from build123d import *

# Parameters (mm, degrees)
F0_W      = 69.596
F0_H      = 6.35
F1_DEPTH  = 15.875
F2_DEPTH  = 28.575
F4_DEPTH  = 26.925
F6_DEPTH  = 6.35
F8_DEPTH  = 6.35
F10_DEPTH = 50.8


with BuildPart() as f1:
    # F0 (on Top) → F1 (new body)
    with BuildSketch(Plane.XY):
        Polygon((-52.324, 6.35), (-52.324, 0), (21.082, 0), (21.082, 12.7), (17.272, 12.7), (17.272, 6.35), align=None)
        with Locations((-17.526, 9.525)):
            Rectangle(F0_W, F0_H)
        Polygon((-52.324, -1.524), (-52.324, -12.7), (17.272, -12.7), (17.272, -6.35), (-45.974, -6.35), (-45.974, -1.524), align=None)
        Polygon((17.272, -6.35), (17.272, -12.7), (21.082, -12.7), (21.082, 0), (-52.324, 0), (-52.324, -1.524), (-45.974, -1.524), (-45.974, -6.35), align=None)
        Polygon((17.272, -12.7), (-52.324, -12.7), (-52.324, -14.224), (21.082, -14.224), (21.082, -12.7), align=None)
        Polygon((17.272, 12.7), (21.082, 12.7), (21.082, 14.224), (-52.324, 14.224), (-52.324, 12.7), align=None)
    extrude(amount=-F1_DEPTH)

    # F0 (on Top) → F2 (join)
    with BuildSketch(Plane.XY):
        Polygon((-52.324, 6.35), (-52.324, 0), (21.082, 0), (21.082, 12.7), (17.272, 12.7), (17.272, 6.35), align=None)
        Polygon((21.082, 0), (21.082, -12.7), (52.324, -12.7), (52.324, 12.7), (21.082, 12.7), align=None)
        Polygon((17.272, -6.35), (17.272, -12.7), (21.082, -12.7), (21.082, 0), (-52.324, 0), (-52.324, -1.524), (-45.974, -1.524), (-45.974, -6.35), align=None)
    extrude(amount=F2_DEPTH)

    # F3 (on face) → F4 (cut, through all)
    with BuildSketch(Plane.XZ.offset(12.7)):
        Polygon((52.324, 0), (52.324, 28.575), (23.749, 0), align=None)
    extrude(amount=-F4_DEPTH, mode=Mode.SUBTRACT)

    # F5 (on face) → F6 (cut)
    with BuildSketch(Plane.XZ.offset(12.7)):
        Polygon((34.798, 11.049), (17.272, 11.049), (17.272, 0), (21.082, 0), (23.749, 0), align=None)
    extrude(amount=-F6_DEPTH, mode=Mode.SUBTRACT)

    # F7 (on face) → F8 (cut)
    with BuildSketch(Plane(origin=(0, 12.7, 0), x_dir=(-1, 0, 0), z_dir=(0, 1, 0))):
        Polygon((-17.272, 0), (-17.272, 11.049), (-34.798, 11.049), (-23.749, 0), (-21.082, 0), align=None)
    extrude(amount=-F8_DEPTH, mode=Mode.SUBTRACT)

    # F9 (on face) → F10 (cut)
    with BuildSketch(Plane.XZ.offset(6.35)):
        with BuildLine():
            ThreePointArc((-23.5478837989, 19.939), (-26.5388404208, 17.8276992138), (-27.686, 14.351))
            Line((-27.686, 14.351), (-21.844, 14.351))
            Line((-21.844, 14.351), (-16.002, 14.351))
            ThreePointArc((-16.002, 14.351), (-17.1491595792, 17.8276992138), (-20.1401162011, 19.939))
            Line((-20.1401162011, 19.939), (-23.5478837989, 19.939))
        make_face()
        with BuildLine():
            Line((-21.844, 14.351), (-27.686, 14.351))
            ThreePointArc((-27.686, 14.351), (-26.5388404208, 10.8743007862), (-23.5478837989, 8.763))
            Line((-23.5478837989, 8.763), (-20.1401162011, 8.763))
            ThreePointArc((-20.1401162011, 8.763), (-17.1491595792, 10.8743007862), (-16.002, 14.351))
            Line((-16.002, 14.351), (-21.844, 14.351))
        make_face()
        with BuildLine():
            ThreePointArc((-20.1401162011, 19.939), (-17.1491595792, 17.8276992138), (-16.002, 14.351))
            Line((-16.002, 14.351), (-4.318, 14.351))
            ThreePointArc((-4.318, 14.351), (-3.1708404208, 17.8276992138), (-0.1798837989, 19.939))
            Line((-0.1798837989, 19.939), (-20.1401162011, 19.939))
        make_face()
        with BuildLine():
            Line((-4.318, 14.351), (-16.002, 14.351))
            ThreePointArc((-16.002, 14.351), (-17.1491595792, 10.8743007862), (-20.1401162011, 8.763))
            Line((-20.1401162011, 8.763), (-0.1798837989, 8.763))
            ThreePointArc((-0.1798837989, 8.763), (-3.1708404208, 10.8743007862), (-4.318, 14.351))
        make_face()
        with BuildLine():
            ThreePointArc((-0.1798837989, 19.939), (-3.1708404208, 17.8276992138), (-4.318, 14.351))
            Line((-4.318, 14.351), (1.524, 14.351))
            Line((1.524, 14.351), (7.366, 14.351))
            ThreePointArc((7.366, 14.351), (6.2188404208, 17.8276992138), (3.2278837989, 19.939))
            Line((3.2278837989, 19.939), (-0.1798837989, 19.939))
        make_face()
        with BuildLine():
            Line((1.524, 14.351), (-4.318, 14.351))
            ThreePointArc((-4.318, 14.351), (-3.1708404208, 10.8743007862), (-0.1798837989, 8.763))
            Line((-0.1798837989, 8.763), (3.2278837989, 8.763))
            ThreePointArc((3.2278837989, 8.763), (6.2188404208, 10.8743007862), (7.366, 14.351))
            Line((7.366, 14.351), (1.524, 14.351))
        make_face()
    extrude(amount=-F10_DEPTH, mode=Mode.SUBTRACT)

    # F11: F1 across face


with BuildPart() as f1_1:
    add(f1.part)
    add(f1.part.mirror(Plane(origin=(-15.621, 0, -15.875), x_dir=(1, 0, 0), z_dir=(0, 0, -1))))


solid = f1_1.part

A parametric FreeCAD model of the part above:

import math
import FreeCAD as App
import Part
import Sketcher

V = App.Vector
Q = App.Units.Quantity

doc = App.newDocument("Part")
params = doc.addObject("Spreadsheet::Sheet", "Params")
for row, (alias, value) in enumerate([
    ("sketch1_width", "2.89 in"),
    ("sketch1_height", "1.12 in"),
    ("pad1_length", "0.625 in"),
    ("sketch2_height", "1 in"),
    ("sketch2_width", "0.25 in"),
    ("sketch2_width2", "2.49 in"),
    ("sketch2_width3", "1.38 in"),
    ("sketch2_height2", "0.31 in"),
    ("pad2_length", "1.125 in"),
    ("sketch3_width", "1.125 in"),
    ("sketch4_width", "0.69 in"),
    ("sketch4_width2", "0.255 in"),
    ("pocket2_length", "0.25 in"),
    ("sketch5_width", "0.69 in"),
    ("sketch5_width2", "0.255 in"),
    ("pocket3_length", "0.25 in"),
    ("sketch6_radius", "0.23 in"),
    ("pocket4_length", "2 in"),
], start=1):
    params.set(f"A{row}", alias)
    params.set(f"B{row}", "=" + value)
    params.setAlias(f"B{row}", alias)

body = doc.addObject("PartDesign::Body", "Body")

sketch1 = body.newObject("Sketcher::SketchObject", "Sketch")
sketch1.AttachmentSupport = (doc.getObject("XY_Plane"), [""])
sketch1.MapMode = "FlatFace"
sketch1.addGeometry(Part.LineSegment(V(-52, -14, 0), V(21, -14, 0)), False)
sketch1.addGeometry(Part.LineSegment(V(21, -14, 0), V(21, 14, 0)), False)
sketch1.addGeometry(Part.LineSegment(V(21, 14, 0), V(-52, 14, 0)), False)
sketch1.addGeometry(Part.LineSegment(V(-52, 14, 0), V(-52, -14, 0)), False)
sketch1.addConstraint(Sketcher.Constraint("Coincident", 0, 2, 1, 1))
sketch1.addConstraint(Sketcher.Constraint("Coincident", 1, 2, 2, 1))
sketch1.addConstraint(Sketcher.Constraint("Coincident", 2, 2, 3, 1))
sketch1.addConstraint(Sketcher.Constraint("Coincident", 3, 2, 0, 1))
sketch1.addConstraint(Sketcher.Constraint("Horizontal", 0))
sketch1.addConstraint(Sketcher.Constraint("Vertical", 1))
sketch1.addConstraint(Sketcher.Constraint("Horizontal", 2))
sketch1.addConstraint(Sketcher.Constraint("Vertical", 3))
sketch1.addConstraint(Sketcher.Constraint("DistanceX", 0, 1, 0, 2, Q("2.89 in")))
sketch1.addConstraint(Sketcher.Constraint("DistanceY", 1, 1, 1, 2, Q("1.12 in")))
sketch1.addConstraint(Sketcher.Constraint("DistanceX", -1, 1, 0, 2, Q("0.83 in")))
sketch1.addConstraint(Sketcher.Constraint("DistanceY", 0, 2, -1, 1, Q("0.56 in")))
sketch1.setExpression("Constraints[8]", "Params.sketch1_width")
sketch1.setExpression("Constraints[9]", "Params.sketch1_height")
pad1 = body.newObject("PartDesign::Pad", "Pad")
pad1.Profile = sketch1
pad1.setExpression("Length", "Params.pad1_length")
pad1.Reversed = True

sketch2 = body.newObject("Sketcher::SketchObject", "Sketch001")
sketch2.AttachmentSupport = (doc.getObject("XY_Plane"), [""])
sketch2.MapMode = "FlatFace"
sketch2.addGeometry(Part.LineSegment(V(-52.3, 6.3, 0), V(-52.3, -1.5, 0)), False)
sketch2.addGeometry(Part.LineSegment(V(-52.3, -1.5, 0), V(-46, -1.5, 0)), False)
sketch2.addGeometry(Part.LineSegment(V(-46, -1.5, 0), V(-46, -6.3, 0)), False)
sketch2.addGeometry(Part.LineSegment(V(-46, -6.3, 0), V(17.3, -6.3, 0)), False)
sketch2.addGeometry(Part.LineSegment(V(17.3, -6.3, 0), V(17.3, -12.7, 0)), False)
sketch2.addGeometry(Part.LineSegment(V(17.3, -12.7, 0), V(52.3, -12.7, 0)), False)
sketch2.addGeometry(Part.LineSegment(V(52.3, -12.7, 0), V(52.3, 12.7, 0)), False)
sketch2.addGeometry(Part.LineSegment(V(52.3, 12.7, 0), V(17.3, 12.7, 0)), False)
sketch2.addGeometry(Part.LineSegment(V(17.3, 12.7, 0), V(17.3, 6.3, 0)), False)
sketch2.addGeometry(Part.LineSegment(V(17.3, 6.3, 0), V(-52.3, 6.3, 0)), False)
sketch2.addConstraint(Sketcher.Constraint("Coincident", 0, 2, 1, 1))
sketch2.addConstraint(Sketcher.Constraint("Coincident", 1, 2, 2, 1))
sketch2.addConstraint(Sketcher.Constraint("Coincident", 2, 2, 3, 1))
sketch2.addConstraint(Sketcher.Constraint("Coincident", 3, 2, 4, 1))
sketch2.addConstraint(Sketcher.Constraint("Coincident", 4, 2, 5, 1))
sketch2.addConstraint(Sketcher.Constraint("Coincident", 5, 2, 6, 1))
sketch2.addConstraint(Sketcher.Constraint("Coincident", 6, 2, 7, 1))
sketch2.addConstraint(Sketcher.Constraint("Coincident", 7, 2, 8, 1))
sketch2.addConstraint(Sketcher.Constraint("Coincident", 8, 2, 9, 1))
sketch2.addConstraint(Sketcher.Constraint("Coincident", 9, 2, 0, 1))
sketch2.addConstraint(Sketcher.Constraint("Vertical", 0))
sketch2.addConstraint(Sketcher.Constraint("Horizontal", 1))
sketch2.addConstraint(Sketcher.Constraint("Vertical", 2))
sketch2.addConstraint(Sketcher.Constraint("Horizontal", 3))
sketch2.addConstraint(Sketcher.Constraint("Vertical", 4))
sketch2.addConstraint(Sketcher.Constraint("Horizontal", 5))
sketch2.addConstraint(Sketcher.Constraint("Vertical", 6))
sketch2.addConstraint(Sketcher.Constraint("Horizontal", 7))
sketch2.addConstraint(Sketcher.Constraint("Vertical", 8))
sketch2.addConstraint(Sketcher.Constraint("Horizontal", 9))
sketch2.addConstraint(Sketcher.Constraint("Symmetric", 4, 2, 7, 2, -1))
sketch2.addConstraint(Sketcher.Constraint("Equal", 1, 4))
sketch2.addConstraint(Sketcher.Constraint("Equal", 4, 8))
sketch2.addConstraint(Sketcher.Constraint("DistanceY", 6, 1, 6, 2, Q("1 in")))
sketch2.addConstraint(Sketcher.Constraint("DistanceX", 1, 1, 1, 2, Q("0.25 in")))
sketch2.addConstraint(Sketcher.Constraint("DistanceX", 3, 1, 3, 2, Q("2.49 in")))
sketch2.addConstraint(Sketcher.Constraint("DistanceX", 5, 1, 5, 2, Q("1.38 in")))
sketch2.addConstraint(Sketcher.Constraint("DistanceY", 0, 2, 0, 1, Q("0.31 in")))
sketch2.addConstraint(Sketcher.Constraint("DistanceX", 0, 2, -1, 1, Q("2.06 in")))
sketch2.setExpression("Constraints[23]", "Params.sketch2_height")
sketch2.setExpression("Constraints[24]", "Params.sketch2_width")
sketch2.setExpression("Constraints[25]", "Params.sketch2_width2")
sketch2.setExpression("Constraints[26]", "Params.sketch2_width3")
sketch2.setExpression("Constraints[27]", "Params.sketch2_height2")
pad2 = body.newObject("PartDesign::Pad", "Pad001")
pad2.Profile = sketch2
pad2.setExpression("Length", "Params.pad2_length")

sketch3 = body.newObject("Sketcher::SketchObject", "Sketch002")
sketch3.AttachmentSupport = (doc.getObject("XZ_Plane"), [""])
sketch3.MapMode = "FlatFace"
sketch3.AttachmentOffset = App.Placement(V(0, 0, 0.5 * 25.4), App.Rotation())
sketch3.addGeometry(Part.LineSegment(V(52, 0, 0), V(52, 29, 0)), False)
sketch3.addGeometry(Part.LineSegment(V(52, 29, 0), V(24, 0, 0)), False)
sketch3.addGeometry(Part.LineSegment(V(24, 0, 0), V(52, 0, 0)), False)
sketch3.addConstraint(Sketcher.Constraint("Coincident", 0, 2, 1, 1))
sketch3.addConstraint(Sketcher.Constraint("Coincident", 1, 2, 2, 1))
sketch3.addConstraint(Sketcher.Constraint("Coincident", 2, 2, 0, 1))
sketch3.addConstraint(Sketcher.Constraint("Vertical", 0))
sketch3.addConstraint(Sketcher.Constraint("Horizontal", 2))
sketch3.addConstraint(Sketcher.Constraint("PointOnObject", 1, 2, -1))
sketch3.addConstraint(Sketcher.Constraint("Equal", 2, 0))
sketch3.addConstraint(Sketcher.Constraint("DistanceX", 2, 1, 2, 2, Q("1.125 in")))
sketch3.addConstraint(Sketcher.Constraint("DistanceX", -1, 1, 0, 2, Q("2.06 in")))
sketch3.setExpression("Constraints[7]", "Params.sketch3_width")
pocket1 = body.newObject("PartDesign::Pocket", "Pocket")
pocket1.Profile = sketch3
pocket1.Type = "ThroughAll"

sketch4 = body.newObject("Sketcher::SketchObject", "Sketch003")
sketch4.AttachmentSupport = (doc.getObject("XZ_Plane"), [""])
sketch4.MapMode = "FlatFace"
sketch4.AttachmentOffset = App.Placement(V(0, 0, 0.5 * 25.4), App.Rotation())
sketch4.addGeometry(Part.LineSegment(V(35, 11, 0), V(17, 11, 0)), False)
sketch4.addGeometry(Part.LineSegment(V(17, 11, 0), V(17, 0, 0)), False)
sketch4.addGeometry(Part.LineSegment(V(17, 0, 0), V(24, 0, 0)), False)
sketch4.addGeometry(Part.LineSegment(V(24, 0, 0), V(35, 11, 0)), False)
sketch4.addConstraint(Sketcher.Constraint("Coincident", 0, 2, 1, 1))
sketch4.addConstraint(Sketcher.Constraint("Coincident", 1, 2, 2, 1))
sketch4.addConstraint(Sketcher.Constraint("Coincident", 2, 2, 3, 1))
sketch4.addConstraint(Sketcher.Constraint("Coincident", 3, 2, 0, 1))
sketch4.addConstraint(Sketcher.Constraint("Horizontal", 0))
sketch4.addConstraint(Sketcher.Constraint("Vertical", 1))
sketch4.addConstraint(Sketcher.Constraint("Horizontal", 2))
sketch4.addConstraint(Sketcher.Constraint("PointOnObject", 1, 2, -1))
sketch4.addConstraint(Sketcher.Constraint("Angle", 3, Q("45 deg")))
sketch4.addConstraint(Sketcher.Constraint("DistanceX", 0, 2, 0, 1, Q("0.69 in")))
sketch4.addConstraint(Sketcher.Constraint("DistanceX", 2, 1, 2, 2, Q("0.255 in")))
sketch4.addConstraint(Sketcher.Constraint("DistanceX", -1, 1, 0, 2, Q("0.68 in")))
sketch4.setExpression("Constraints[9]", "Params.sketch4_width")
sketch4.setExpression("Constraints[10]", "Params.sketch4_width2")
pocket2 = body.newObject("PartDesign::Pocket", "Pocket001")
pocket2.Profile = sketch4
pocket2.setExpression("Length", "Params.pocket2_length")

sketch5 = body.newObject("Sketcher::SketchObject", "Sketch004")
sketch5.AttachmentSupport = (doc.getObject("XZ_Plane"), [""])
sketch5.MapMode = "FlatFace"
sketch5.AttachmentOffset = App.Placement(V(0, 0, -0.5 * 25.4), App.Rotation())
sketch5.addGeometry(Part.LineSegment(V(17, 0, 0), V(17, 11, 0)), False)
sketch5.addGeometry(Part.LineSegment(V(17, 11, 0), V(35, 11, 0)), False)
sketch5.addGeometry(Part.LineSegment(V(35, 11, 0), V(24, 0, 0)), False)
sketch5.addGeometry(Part.LineSegment(V(24, 0, 0), V(17, 0, 0)), False)
sketch5.addConstraint(Sketcher.Constraint("Coincident", 0, 2, 1, 1))
sketch5.addConstraint(Sketcher.Constraint("Coincident", 1, 2, 2, 1))
sketch5.addConstraint(Sketcher.Constraint("Coincident", 2, 2, 3, 1))
sketch5.addConstraint(Sketcher.Constraint("Coincident", 3, 2, 0, 1))
sketch5.addConstraint(Sketcher.Constraint("Vertical", 0))
sketch5.addConstraint(Sketcher.Constraint("Horizontal", 1))
sketch5.addConstraint(Sketcher.Constraint("Horizontal", 3))
sketch5.addConstraint(Sketcher.Constraint("PointOnObject", 2, 2, -1))
sketch5.addConstraint(Sketcher.Constraint("Angle", 2, Q("-135 deg")))
sketch5.addConstraint(Sketcher.Constraint("DistanceX", 1, 1, 1, 2, Q("0.69 in")))
sketch5.addConstraint(Sketcher.Constraint("DistanceX", 3, 2, 3, 1, Q("0.255 in")))
sketch5.addConstraint(Sketcher.Constraint("DistanceX", -1, 1, 0, 2, Q("0.68 in")))
sketch5.setExpression("Constraints[9]", "Params.sketch5_width")
sketch5.setExpression("Constraints[10]", "Params.sketch5_width2")
pocket3 = body.newObject("PartDesign::Pocket", "Pocket002")
pocket3.Profile = sketch5
pocket3.setExpression("Length", "Params.pocket3_length")
pocket3.Reversed = True

sketch6 = body.newObject("Sketcher::SketchObject", "Sketch005")
sketch6.AttachmentSupport = (doc.getObject("XZ_Plane"), [""])
sketch6.MapMode = "FlatFace"
sketch6.AttachmentOffset = App.Placement(V(0, 0, 0.25 * 25.4), App.Rotation())
sketch6.addGeometry(Part.ArcOfCircle(Part.Circle(V(-22, 14, 0), V(0, 0, 1), 6), math.radians(107), math.radians(180)), False)
sketch6.addGeometry(Part.ArcOfCircle(Part.Circle(V(-22, 14, 0), V(0, 0, 1), 6), math.radians(180), math.radians(253)), False)
sketch6.addGeometry(Part.LineSegment(V(-24, 9, 0), V(3, 9, 0)), False)
sketch6.addGeometry(Part.ArcOfCircle(Part.Circle(V(2, 14, 0), V(0, 0, 1), 6), math.radians(-73), math.radians(0)), False)
sketch6.addGeometry(Part.ArcOfCircle(Part.Circle(V(2, 14, 0), V(0, 0, 1), 6), math.radians(0), math.radians(73)), False)
sketch6.addGeometry(Part.LineSegment(V(3, 20, 0), V(-24, 20, 0)), False)
sketch6.addConstraint(Sketcher.Constraint("Tangent", 0, 2, 1, 1))
sketch6.addConstraint(Sketcher.Constraint("Coincident", 1, 2, 2, 1))
sketch6.addConstraint(Sketcher.Constraint("Coincident", 2, 2, 3, 1))
sketch6.addConstraint(Sketcher.Constraint("Tangent", 3, 2, 4, 1))
sketch6.addConstraint(Sketcher.Constraint("Coincident", 4, 2, 5, 1))
sketch6.addConstraint(Sketcher.Constraint("Coincident", 5, 2, 0, 1))
sketch6.addConstraint(Sketcher.Constraint("Horizontal", 2))
sketch6.addConstraint(Sketcher.Constraint("Horizontal", 5))
sketch6.addConstraint(Sketcher.Constraint("Equal", 0, 1))
sketch6.addConstraint(Sketcher.Constraint("Equal", 1, 3))
sketch6.addConstraint(Sketcher.Constraint("Equal", 3, 4))
sketch6.addConstraint(Sketcher.Constraint("Horizontal", 1, 3, 3, 3))
sketch6.addConstraint(Sketcher.Constraint("Horizontal", 4, 3, 0, 2))
sketch6.addConstraint(Sketcher.Constraint("Horizontal", 0, 2, 3, 2))
sketch6.addConstraint(Sketcher.Constraint("Vertical", 2, 2, 4, 2))
sketch6.addConstraint(Sketcher.Constraint("Radius", 0, Q("0.23 in")))
sketch6.addConstraint(Sketcher.Constraint("DistanceX", 0, 3, -1, 1, Q("0.86 in")))
sketch6.addConstraint(Sketcher.Constraint("DistanceX", -1, 1, 3, 3, Q("0.06 in")))
sketch6.addConstraint(Sketcher.Constraint("DistanceY", 1, 2, 0, 3, Q("0.22 in")))
sketch6.addConstraint(Sketcher.Constraint("DistanceY", -1, 1, 0, 3, Q("0.565 in")))
sketch6.setExpression("Constraints[15]", "Params.sketch6_radius")
pocket4 = body.newObject("PartDesign::Pocket", "Pocket003")
pocket4.Profile = sketch6
pocket4.setExpression("Length", "Params.pocket4_length")
body2 = doc.addObject("PartDesign::Body", "Body001")
doc.recompute()

body2.BaseFeature = body
doc.recompute()

mirroring = doc.addObject("Part::Mirroring", "Mirroring")
mirroring.Source = body
mirroring.Base = V(-15.621, 0, -15.875)
mirroring.Normal = V(0, 0, -1)
body3 = doc.addObject("PartDesign::Body", "Body002")
body3.BaseFeature = mirroring
boolean = body2.newObject("PartDesign::Boolean", "Boolean")
boolean.Type = "Fuse"
boolean.addObjects([body3])
doc.recompute()
mirroring.Visibility = False

doc.recompute()
